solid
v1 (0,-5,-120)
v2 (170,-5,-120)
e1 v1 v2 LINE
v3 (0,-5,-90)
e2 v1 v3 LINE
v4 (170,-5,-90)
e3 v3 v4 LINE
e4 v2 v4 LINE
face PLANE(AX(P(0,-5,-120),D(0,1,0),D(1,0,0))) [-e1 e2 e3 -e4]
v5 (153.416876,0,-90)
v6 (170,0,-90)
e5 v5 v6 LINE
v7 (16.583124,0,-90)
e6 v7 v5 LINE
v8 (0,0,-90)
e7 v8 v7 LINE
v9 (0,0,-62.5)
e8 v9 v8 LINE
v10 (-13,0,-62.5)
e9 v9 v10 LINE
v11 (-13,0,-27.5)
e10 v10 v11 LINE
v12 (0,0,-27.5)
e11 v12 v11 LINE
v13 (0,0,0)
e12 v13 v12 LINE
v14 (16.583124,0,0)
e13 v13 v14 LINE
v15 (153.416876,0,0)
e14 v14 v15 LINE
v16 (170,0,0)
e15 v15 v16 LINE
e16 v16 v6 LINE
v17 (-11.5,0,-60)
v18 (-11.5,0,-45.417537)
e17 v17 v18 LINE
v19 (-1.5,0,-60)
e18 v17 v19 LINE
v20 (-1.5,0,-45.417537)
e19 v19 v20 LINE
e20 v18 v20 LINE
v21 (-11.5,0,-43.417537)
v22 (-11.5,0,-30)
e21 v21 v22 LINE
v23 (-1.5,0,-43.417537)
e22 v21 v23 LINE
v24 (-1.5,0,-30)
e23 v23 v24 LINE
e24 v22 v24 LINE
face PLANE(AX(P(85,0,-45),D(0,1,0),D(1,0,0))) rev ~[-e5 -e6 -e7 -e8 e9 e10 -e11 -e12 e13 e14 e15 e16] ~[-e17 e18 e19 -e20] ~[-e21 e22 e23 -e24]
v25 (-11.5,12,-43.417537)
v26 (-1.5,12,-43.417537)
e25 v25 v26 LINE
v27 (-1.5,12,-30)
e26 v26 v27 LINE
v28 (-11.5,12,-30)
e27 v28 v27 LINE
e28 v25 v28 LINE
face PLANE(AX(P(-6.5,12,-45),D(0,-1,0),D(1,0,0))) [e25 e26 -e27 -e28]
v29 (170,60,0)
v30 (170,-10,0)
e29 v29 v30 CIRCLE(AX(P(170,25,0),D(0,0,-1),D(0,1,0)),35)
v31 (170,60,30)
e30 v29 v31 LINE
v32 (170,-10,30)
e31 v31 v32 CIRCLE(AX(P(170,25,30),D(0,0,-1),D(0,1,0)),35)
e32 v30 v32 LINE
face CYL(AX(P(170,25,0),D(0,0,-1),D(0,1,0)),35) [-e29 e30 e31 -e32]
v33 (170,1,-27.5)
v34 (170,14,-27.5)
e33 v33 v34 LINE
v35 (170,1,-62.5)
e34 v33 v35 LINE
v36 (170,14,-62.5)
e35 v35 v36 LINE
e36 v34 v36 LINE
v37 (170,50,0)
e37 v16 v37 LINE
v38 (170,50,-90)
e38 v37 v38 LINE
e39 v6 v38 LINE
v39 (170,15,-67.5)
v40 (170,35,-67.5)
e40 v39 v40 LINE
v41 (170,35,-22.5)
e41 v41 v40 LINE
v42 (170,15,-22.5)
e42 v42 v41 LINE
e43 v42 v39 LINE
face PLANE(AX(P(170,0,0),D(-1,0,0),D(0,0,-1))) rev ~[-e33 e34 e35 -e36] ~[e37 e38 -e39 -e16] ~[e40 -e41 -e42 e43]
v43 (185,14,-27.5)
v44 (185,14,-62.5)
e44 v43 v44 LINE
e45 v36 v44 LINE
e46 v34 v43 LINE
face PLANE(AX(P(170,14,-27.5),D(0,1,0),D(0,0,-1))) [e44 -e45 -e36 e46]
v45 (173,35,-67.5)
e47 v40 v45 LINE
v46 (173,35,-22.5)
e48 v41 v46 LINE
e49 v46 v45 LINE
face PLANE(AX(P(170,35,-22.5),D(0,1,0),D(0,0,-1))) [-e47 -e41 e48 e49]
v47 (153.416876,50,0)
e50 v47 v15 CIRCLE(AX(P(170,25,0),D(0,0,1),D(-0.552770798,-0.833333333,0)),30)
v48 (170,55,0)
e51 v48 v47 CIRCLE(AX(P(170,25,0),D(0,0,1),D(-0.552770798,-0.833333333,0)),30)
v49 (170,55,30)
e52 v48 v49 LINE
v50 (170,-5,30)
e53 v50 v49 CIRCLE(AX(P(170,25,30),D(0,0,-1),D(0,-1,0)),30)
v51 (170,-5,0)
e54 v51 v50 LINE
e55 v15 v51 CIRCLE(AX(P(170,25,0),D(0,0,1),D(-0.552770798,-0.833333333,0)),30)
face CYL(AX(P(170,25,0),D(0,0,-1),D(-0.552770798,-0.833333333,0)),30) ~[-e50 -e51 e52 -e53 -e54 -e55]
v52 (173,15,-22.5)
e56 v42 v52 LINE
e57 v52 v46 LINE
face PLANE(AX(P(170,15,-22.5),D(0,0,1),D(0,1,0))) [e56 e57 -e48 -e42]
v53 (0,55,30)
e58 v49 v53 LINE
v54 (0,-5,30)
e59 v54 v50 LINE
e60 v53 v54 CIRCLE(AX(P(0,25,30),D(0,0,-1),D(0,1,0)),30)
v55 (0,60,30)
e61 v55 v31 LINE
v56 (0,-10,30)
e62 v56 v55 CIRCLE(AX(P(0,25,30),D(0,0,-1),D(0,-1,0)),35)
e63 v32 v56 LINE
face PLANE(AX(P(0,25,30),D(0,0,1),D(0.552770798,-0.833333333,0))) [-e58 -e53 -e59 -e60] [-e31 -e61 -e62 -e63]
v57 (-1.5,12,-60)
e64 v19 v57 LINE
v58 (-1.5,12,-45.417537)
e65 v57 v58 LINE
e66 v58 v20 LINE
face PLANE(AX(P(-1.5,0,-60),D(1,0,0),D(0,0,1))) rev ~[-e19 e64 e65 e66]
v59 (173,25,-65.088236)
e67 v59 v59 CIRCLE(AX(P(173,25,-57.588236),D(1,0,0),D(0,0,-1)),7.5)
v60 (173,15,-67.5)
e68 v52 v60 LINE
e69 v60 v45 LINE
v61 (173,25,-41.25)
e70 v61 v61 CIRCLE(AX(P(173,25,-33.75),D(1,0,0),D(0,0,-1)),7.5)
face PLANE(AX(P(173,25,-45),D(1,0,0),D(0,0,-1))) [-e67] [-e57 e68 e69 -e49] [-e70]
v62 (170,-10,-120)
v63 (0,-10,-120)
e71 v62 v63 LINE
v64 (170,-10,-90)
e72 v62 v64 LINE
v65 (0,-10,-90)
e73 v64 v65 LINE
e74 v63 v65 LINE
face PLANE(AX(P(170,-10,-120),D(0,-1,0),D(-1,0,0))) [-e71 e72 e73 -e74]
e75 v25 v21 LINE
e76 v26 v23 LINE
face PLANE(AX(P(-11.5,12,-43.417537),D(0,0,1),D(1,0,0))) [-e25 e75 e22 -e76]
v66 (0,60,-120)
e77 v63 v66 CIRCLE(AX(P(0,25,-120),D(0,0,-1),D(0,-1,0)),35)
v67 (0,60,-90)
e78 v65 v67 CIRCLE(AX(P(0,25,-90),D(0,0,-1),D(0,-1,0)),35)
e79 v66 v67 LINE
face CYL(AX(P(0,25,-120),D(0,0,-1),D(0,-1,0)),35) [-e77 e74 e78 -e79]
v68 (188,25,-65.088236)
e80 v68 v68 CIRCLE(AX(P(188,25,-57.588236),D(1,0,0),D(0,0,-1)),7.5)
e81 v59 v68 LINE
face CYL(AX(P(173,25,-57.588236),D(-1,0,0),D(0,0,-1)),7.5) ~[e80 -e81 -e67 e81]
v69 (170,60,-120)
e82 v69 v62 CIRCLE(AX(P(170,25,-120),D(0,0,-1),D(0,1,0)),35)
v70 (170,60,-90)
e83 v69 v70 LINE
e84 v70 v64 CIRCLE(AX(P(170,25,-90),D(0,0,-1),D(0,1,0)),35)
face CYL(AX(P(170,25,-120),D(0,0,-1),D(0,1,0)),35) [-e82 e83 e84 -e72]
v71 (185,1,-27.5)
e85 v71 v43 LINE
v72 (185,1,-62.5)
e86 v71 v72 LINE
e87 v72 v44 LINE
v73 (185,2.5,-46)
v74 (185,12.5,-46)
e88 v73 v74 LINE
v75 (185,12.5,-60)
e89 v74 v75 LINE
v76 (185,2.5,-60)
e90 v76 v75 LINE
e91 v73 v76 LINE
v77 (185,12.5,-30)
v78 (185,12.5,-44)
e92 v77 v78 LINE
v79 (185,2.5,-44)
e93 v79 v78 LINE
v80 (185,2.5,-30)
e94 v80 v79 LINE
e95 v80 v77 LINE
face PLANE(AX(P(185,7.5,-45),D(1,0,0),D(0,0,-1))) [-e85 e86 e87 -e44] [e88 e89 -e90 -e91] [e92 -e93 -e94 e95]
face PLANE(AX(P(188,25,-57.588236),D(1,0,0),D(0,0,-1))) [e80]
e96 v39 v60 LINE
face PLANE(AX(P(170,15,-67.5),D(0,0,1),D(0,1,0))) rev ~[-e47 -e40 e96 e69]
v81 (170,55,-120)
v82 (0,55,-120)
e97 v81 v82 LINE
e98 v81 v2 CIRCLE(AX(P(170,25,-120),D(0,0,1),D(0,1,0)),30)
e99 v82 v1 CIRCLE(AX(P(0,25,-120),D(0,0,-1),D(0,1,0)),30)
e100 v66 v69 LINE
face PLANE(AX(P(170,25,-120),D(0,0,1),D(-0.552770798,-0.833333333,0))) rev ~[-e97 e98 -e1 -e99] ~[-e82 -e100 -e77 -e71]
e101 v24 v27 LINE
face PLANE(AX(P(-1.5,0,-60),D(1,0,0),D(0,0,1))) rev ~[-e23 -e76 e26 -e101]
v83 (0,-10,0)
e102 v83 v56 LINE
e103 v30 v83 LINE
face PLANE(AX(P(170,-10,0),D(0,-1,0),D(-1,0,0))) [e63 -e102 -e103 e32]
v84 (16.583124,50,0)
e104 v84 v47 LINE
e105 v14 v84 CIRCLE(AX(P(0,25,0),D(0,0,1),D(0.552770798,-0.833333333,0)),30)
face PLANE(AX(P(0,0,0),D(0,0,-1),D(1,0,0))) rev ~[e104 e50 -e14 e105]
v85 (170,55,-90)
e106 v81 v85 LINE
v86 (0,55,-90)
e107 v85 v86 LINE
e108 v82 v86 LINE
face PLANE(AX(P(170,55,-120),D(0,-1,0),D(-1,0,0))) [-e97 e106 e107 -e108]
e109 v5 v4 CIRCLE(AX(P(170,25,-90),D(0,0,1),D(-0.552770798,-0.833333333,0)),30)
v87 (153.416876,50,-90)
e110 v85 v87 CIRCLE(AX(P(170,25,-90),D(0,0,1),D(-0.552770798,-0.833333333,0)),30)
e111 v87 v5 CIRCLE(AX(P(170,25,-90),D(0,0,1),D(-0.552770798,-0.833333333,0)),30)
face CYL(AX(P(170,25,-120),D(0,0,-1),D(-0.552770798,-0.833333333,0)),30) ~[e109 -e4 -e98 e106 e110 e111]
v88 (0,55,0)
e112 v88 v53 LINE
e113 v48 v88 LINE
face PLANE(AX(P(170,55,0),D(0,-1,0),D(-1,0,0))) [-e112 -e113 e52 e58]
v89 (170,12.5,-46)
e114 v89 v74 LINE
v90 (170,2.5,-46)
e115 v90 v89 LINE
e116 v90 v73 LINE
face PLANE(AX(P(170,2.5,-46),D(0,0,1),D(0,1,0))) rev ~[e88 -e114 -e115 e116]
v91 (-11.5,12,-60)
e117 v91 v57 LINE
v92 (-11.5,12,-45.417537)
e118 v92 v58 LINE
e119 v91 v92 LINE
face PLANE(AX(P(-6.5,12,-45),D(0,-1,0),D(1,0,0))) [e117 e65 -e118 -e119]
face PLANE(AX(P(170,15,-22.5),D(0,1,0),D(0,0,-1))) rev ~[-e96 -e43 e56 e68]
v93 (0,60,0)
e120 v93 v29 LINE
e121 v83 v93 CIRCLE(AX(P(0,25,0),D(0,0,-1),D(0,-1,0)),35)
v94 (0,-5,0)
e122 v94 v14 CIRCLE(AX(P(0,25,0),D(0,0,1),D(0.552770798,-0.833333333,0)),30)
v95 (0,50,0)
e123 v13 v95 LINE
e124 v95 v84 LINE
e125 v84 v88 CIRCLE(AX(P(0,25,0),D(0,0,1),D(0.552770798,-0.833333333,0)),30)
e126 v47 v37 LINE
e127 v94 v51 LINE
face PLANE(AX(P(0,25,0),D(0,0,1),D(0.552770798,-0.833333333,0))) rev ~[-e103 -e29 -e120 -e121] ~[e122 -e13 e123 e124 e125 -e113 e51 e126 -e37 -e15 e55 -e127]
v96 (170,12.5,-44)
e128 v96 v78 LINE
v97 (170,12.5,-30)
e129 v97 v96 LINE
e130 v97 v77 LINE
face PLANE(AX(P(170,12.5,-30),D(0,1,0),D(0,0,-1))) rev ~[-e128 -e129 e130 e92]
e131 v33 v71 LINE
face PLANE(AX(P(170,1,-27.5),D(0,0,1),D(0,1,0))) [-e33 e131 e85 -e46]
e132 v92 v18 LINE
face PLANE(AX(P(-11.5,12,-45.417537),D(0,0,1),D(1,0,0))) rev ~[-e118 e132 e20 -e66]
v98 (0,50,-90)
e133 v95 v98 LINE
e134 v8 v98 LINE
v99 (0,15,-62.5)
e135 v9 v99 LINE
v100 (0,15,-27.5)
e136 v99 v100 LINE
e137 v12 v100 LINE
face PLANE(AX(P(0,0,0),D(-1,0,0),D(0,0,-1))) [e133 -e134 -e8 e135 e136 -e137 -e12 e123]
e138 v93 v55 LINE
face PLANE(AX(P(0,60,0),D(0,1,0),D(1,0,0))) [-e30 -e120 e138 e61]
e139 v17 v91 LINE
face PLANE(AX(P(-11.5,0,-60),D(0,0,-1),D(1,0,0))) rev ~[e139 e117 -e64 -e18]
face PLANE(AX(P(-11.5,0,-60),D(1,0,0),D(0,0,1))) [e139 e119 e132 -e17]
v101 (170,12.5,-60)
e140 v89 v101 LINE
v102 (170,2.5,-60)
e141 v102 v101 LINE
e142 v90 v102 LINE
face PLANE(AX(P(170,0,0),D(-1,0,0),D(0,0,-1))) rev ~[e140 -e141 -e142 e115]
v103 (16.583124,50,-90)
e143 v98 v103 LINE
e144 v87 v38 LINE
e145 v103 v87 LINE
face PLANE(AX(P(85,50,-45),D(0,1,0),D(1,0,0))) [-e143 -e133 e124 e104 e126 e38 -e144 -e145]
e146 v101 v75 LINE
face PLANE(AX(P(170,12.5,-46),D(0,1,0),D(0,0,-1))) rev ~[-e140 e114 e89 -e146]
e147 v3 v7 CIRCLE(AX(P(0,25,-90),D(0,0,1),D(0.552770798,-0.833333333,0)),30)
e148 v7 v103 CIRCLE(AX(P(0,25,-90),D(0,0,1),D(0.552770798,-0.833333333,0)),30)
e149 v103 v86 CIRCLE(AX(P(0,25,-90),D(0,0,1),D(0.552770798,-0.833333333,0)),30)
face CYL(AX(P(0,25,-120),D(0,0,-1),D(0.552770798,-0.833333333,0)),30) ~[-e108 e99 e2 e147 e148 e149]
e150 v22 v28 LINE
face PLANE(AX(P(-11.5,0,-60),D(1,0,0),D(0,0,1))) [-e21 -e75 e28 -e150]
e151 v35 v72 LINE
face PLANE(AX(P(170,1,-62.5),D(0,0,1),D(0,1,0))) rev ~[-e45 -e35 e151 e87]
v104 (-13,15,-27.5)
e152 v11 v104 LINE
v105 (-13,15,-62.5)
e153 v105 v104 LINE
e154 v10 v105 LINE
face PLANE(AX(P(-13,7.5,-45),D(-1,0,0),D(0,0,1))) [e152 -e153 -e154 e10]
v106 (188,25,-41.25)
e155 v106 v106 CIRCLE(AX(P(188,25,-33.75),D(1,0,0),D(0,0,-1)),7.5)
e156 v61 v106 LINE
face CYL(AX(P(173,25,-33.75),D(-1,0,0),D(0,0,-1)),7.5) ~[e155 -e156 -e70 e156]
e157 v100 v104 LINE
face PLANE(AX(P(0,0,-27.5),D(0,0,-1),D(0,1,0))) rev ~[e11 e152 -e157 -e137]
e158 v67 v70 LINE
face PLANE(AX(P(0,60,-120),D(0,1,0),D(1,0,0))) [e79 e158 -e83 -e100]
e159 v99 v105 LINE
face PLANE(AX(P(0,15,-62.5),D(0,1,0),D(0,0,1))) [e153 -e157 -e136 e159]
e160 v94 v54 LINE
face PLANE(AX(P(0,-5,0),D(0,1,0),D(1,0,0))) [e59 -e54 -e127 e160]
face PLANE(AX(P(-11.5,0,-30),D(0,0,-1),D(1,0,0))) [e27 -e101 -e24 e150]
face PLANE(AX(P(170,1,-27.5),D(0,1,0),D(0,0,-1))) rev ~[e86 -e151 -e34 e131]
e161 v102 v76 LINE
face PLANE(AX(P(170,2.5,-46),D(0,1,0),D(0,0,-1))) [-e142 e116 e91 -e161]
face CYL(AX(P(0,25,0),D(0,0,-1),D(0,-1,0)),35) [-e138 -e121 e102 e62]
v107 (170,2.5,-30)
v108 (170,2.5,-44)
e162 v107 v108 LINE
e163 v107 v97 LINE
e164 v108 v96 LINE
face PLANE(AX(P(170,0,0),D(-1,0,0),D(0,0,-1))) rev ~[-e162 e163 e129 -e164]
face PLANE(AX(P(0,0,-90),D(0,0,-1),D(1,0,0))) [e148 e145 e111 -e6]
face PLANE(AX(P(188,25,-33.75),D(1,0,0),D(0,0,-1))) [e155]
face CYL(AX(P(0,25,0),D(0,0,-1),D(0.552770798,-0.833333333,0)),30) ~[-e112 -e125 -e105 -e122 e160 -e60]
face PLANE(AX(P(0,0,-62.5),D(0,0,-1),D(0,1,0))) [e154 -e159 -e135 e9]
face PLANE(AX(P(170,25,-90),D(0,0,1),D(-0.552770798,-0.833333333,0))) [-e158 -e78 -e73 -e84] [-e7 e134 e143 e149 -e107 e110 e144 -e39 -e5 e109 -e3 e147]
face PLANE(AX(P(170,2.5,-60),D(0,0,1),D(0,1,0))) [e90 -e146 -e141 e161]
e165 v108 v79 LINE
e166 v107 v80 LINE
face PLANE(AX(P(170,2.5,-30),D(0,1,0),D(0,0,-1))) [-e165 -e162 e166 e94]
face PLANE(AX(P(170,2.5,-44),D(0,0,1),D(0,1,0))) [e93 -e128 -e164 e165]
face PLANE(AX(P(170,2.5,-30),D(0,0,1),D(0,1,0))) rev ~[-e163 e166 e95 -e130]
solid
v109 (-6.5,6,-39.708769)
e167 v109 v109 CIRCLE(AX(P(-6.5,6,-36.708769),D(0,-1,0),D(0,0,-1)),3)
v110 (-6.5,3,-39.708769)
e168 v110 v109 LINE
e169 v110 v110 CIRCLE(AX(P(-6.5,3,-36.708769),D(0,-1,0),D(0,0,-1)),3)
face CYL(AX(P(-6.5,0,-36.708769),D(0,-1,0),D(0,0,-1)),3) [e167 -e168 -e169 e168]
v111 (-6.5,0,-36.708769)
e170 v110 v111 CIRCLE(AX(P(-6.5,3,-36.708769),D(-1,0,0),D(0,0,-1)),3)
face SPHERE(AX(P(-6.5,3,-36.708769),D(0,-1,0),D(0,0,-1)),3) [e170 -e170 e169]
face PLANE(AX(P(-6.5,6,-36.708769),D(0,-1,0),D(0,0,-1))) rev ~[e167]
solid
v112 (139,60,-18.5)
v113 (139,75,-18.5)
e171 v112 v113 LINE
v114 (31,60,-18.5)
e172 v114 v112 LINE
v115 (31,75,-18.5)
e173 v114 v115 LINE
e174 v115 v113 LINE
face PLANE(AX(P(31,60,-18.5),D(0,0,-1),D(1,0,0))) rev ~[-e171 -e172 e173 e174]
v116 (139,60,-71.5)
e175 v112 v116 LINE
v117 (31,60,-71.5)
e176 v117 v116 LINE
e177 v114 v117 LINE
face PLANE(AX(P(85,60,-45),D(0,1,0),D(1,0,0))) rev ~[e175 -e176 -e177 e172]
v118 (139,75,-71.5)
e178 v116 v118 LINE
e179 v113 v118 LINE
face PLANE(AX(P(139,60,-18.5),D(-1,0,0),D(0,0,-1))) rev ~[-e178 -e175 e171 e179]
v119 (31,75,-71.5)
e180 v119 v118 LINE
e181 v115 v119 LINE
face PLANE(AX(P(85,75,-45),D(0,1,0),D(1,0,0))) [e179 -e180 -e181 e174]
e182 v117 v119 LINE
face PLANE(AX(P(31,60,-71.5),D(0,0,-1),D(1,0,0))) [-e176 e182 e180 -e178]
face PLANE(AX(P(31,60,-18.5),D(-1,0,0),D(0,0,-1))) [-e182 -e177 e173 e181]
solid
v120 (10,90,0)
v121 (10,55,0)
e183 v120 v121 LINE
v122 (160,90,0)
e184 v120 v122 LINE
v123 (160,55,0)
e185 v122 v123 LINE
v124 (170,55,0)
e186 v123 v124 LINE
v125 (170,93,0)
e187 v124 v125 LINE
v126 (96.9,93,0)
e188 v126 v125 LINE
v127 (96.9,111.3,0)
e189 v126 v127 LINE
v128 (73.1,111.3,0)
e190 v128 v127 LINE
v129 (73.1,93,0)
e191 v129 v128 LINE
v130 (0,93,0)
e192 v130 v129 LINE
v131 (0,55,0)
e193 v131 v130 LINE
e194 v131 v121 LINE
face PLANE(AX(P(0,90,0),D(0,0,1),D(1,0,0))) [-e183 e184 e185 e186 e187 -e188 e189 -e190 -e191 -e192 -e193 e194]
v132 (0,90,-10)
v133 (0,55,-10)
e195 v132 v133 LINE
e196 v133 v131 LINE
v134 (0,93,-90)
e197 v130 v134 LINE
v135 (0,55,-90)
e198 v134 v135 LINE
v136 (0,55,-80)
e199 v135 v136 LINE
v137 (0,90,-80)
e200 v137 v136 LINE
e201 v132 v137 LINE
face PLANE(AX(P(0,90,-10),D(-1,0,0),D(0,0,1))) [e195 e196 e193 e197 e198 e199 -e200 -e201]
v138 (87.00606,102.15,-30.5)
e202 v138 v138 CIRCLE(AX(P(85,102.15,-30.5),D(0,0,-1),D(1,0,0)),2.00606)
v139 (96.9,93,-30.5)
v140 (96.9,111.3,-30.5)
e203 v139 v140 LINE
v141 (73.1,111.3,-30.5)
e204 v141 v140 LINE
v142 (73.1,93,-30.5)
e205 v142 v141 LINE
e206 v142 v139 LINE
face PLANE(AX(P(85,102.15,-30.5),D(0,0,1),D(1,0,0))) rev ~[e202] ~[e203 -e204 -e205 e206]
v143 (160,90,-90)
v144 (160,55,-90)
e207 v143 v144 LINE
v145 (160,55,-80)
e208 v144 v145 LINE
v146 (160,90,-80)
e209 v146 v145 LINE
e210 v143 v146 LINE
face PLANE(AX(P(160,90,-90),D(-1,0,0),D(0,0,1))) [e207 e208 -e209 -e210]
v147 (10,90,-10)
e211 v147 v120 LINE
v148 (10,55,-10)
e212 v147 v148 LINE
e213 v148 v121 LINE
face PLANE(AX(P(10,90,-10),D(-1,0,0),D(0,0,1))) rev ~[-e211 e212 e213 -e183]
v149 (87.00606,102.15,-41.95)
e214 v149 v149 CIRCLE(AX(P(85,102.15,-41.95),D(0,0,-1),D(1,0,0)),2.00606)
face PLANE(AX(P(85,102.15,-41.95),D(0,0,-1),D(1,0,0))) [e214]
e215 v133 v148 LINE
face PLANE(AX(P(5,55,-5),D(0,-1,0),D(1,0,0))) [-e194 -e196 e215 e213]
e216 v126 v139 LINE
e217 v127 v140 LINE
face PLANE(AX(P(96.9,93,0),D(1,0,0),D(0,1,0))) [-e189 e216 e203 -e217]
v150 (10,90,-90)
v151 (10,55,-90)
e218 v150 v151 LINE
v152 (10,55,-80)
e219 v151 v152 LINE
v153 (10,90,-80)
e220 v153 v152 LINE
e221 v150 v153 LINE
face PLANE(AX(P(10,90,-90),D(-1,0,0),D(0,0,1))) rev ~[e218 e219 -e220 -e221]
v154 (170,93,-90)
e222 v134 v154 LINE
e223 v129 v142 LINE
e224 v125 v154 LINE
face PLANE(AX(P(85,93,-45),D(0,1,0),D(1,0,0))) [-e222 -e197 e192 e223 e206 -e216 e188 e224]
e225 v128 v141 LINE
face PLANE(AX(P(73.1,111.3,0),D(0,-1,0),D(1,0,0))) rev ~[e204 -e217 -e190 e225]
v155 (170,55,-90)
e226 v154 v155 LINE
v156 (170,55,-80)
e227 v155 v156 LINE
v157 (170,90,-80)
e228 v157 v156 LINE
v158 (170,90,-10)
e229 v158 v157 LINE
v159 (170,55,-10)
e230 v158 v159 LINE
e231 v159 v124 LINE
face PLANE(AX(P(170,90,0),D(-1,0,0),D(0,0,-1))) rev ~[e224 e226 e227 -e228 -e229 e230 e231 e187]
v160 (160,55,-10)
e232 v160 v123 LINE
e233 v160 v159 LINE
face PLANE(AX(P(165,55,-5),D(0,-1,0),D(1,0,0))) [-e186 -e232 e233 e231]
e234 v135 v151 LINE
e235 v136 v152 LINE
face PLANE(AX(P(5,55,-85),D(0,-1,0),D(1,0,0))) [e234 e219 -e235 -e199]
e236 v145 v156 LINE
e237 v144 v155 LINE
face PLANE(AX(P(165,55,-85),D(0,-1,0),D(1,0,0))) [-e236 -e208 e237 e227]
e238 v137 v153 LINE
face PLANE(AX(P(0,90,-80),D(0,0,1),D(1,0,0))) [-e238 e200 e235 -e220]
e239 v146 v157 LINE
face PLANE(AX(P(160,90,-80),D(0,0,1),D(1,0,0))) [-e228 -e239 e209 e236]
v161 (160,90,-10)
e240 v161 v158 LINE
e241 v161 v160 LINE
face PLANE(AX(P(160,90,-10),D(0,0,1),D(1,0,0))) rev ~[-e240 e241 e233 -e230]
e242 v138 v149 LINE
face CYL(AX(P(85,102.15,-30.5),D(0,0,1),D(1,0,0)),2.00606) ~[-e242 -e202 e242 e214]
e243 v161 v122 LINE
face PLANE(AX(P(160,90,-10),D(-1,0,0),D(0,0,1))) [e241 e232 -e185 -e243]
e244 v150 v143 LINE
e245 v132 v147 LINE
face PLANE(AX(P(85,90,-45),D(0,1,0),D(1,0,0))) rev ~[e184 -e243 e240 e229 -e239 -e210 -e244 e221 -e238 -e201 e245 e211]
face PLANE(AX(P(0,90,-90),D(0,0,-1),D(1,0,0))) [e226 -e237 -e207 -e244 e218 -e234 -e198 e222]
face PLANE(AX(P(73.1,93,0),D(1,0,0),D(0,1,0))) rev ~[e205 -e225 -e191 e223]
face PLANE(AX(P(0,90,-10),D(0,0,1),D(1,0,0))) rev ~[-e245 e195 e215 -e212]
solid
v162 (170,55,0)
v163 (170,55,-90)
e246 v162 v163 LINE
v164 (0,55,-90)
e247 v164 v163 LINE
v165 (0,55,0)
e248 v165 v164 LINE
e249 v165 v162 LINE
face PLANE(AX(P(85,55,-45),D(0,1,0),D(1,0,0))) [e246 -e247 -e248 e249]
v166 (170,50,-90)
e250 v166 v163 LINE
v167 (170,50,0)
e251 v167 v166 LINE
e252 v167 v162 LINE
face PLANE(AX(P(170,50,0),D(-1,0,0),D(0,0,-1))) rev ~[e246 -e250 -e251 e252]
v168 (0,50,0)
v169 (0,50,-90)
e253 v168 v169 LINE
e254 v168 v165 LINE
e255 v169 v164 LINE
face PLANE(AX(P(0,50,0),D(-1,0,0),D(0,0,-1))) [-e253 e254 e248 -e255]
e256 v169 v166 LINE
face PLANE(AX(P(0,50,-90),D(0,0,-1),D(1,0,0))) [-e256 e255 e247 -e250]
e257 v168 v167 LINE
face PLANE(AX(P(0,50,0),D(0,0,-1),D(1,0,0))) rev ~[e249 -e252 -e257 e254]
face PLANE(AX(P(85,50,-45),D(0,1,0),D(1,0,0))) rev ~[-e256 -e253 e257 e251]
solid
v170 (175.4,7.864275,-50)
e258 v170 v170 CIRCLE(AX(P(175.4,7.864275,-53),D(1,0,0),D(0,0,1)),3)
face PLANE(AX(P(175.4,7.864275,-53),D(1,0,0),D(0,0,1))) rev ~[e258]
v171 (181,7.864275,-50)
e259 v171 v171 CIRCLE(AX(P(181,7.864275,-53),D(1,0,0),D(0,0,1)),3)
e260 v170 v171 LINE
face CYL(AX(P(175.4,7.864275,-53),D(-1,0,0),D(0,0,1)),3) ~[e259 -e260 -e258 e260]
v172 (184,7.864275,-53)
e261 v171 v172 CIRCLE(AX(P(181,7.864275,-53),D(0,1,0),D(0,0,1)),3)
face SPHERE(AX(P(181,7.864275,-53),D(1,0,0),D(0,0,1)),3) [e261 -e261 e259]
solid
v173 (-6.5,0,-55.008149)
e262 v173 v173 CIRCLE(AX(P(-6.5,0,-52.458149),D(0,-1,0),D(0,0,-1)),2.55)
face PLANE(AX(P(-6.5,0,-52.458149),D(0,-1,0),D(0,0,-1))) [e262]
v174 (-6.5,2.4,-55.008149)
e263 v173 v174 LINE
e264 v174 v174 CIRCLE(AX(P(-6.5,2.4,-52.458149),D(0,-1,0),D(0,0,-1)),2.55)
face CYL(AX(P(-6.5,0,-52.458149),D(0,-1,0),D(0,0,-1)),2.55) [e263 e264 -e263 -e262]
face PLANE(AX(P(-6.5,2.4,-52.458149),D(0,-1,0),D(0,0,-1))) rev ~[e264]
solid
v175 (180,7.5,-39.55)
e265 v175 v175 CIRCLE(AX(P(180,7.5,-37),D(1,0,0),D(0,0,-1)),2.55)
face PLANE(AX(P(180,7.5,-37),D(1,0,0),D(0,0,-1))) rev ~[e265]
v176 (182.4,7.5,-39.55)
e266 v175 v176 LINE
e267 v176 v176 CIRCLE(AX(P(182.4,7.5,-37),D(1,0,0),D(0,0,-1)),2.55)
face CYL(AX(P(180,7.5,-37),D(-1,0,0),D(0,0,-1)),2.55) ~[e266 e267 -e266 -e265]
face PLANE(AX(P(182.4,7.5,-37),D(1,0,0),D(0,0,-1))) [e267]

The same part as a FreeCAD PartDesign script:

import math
import FreeCAD as App
import Part
import Sketcher


def edges_at(feature, points):
    """Names of the edges that pass closest to the given points."""
    edges = feature.Shape.Edges
    near = lambda p: min(range(len(edges)), key=lambda i: edges[i].distToShape(Part.Vertex(*p))[0])
    return sorted({f"Edge{near(p) + 1}" for p in points})


def add_polygon(sketch, points):
    """Adds a closed chain of lines whose ends are joined by coincident constraints."""
    first, n = sketch.GeometryCount, len(points)
    for a, b in zip(points, points[1:] + points[:1]):
        sketch.addGeometry(Part.LineSegment(App.Vector(*a, 0), App.Vector(*b, 0)), False)
    for i in range(n):
        sketch.addConstraint(Sketcher.Constraint("Coincident", first + i, 2, first + (i + 1) % n, 1))

doc = App.newDocument("Part")
body = doc.addObject("PartDesign::Body", "Body")

# Sketch on XZ plane
sketch1 = doc.addObject("Sketcher::SketchObject", "Sketch")
body.addObject(sketch1)
sketch1.AttachmentSupport = (doc.XZ_Plane, [""])
sketch1.MapMode = "FlatFace"
add_polygon(sketch1, [(0, -90), (0, 0), (170, 0), (170, -90)])  # lines 0-3
sketch1.addConstraint([
    Sketcher.Constraint("Vertical", 0),
    Sketcher.Constraint("Horizontal", 1),
    Sketcher.Constraint("Vertical", 2),
    Sketcher.Constraint("Horizontal", 3),
    Sketcher.Constraint("Coincident", 0, 2, -1, 1),
    Sketcher.Constraint("DistanceX", 1, 1, 1, 2, 170.0),
    Sketcher.Constraint("DistanceY", 0, 1, 0, 2, 90.0),
])
pad1 = doc.addObject("PartDesign::Pad", "Pad")
body.addObject(pad1)
pad1.Profile = sketch1
pad1.Length = 50
pad1.Reversed = True

# Sketch on XY plane
sketch2 = doc.addObject("Sketcher::SketchObject", "Sketch001")
body.addObject(sketch2)
sketch2.AttachmentSupport = (doc.XY_Plane, [""])
sketch2.MapMode = "FlatFace"
sketch2.addGeometry([
    Part.Circle(App.Vector(170, 25, 0), App.Vector(0, 0, 1), 30),
    Part.Circle(App.Vector(0, 25, 0), App.Vector(0, 0, 1), 30),
], False)
sketch2.addConstraint([
    Sketcher.Constraint("Equal", 0, 1),
    Sketcher.Constraint("PointOnObject", 1, 3, -2),
    Sketcher.Constraint("Horizontal", 0, 3, 1, 3),
    Sketcher.Constraint("Diameter", 0, 60.0),
    Sketcher.Constraint("DistanceX", -1, 1, 0, 3, 170.0),
    Sketcher.Constraint("DistanceY", -1, 1, 0, 3, 25.0),
])
pad2 = doc.addObject("PartDesign::Pad", "Pad001")
body.addObject(pad2)
pad2.Profile = sketch2
pad2.Length = 30
doc.recompute()

linearpattern = doc.addObject("PartDesign::LinearPattern", "LinearPattern")
body.addObject(linearpattern)
linearpattern.Originals = [pad2]
linearpattern.Direction = (doc.Z_Axis, [""])
linearpattern.Mode = "offset"
linearpattern.Offset = 120
linearpattern.Occurrences = 2
linearpattern.Reversed = True
body.Tip = linearpattern

# Sketch on XY plane
sketch3 = doc.addObject("Sketcher::SketchObject", "Sketch002")
body.addObject(sketch3)
sketch3.AttachmentSupport = (doc.XY_Plane, [""])
sketch3.MapMode = "FlatFace"
sketch3.addGeometry([
    Part.LineSegment(App.Vector(170, 60, 0), App.Vector(0, 60, 0)),  # 0
    Part.ArcOfCircle(Part.Circle(App.Vector(0, 25, 0), App.Vector(0, 0, 1), 35), math.radians(90), math.radians(270)),  # 1
    Part.LineSegment(App.Vector(0, -10, 0), App.Vector(170, -10, 0)),  # 2
    Part.ArcOfCircle(Part.Circle(App.Vector(170, 25, 0), App.Vector(0, 0, 1), 35), math.radians(-90), math.radians(90)),  # 3
    Part.ArcOfCircle(Part.Circle(App.Vector(170, 25, 0), App.Vector(0, 0, 1), 30), math.radians(-90), math.radians(90)),  # 4
    Part.LineSegment(App.Vector(170, -5, 0), App.Vector(0, -5, 0)),  # 5
    Part.ArcOfCircle(Part.Circle(App.Vector(0, 25, 0), App.Vector(0, 0, 1), 30), math.radians(90), math.radians(270)),  # 6
    Part.LineSegment(App.Vector(0, 55, 0), App.Vector(170, 55, 0)),  # 7
], False)
sketch3.addConstraint([
    Sketcher.Constraint("Tangent", 0, 2, 1, 1),
    Sketcher.Constraint("Tangent", 1, 2, 2, 1),
    Sketcher.Constraint("Tangent", 2, 2, 3, 1),
    Sketcher.Constraint("Tangent", 3, 2, 0, 1),
    Sketcher.Constraint("Tangent", 4, 1, 5, 1),
    Sketcher.Constraint("Tangent", 5, 2, 6, 2),
    Sketcher.Constraint("Tangent", 6, 1, 7, 1),
    Sketcher.Constraint("Tangent", 7, 2, 4, 2),
    Sketcher.Constraint("Horizontal", 0),
    Sketcher.Constraint("Horizontal", 2),
    Sketcher.Constraint("Horizontal", 5),
    Sketcher.Constraint("Horizontal", 7),
    Sketcher.Constraint("Coincident", 4, 3, 3, 3),
    Sketcher.Constraint("PointOnObject", 1, 3, -2),
    Sketcher.Constraint("PointOnObject", 6, 3, -2),
    Sketcher.Constraint("Radius", 1, 35.0),
    Sketcher.Constraint("Radius", 4, 30.0),
    Sketcher.Constraint("DistanceX", 0, 2, 0, 1, 170.0),
    Sketcher.Constraint("DistanceY", -1, 1, 1, 3, 25.0),
])
pad3 = doc.addObject("PartDesign::Pad", "Pad002")
body.addObject(pad3)
pad3.Profile = sketch3
pad3.Length = 30
doc.recompute()

linearpattern2 = doc.addObject("PartDesign::LinearPattern", "LinearPattern001")
body.addObject(linearpattern2)
linearpattern2.Originals = [pad3]
linearpattern2.Direction = (doc.Z_Axis, [""])
linearpattern2.Mode = "offset"
linearpattern2.Offset = 120
linearpattern2.Occurrences = 2
linearpattern2.Reversed = True
body.Tip = linearpattern2

# Sketch on YZ plane
sketch4 = doc.addObject("Sketcher::SketchObject", "Sketch003")
body.addObject(sketch4)
sketch4.AttachmentSupport = (doc.YZ_Plane, [""])
sketch4.MapMode = "FlatFace"
sketch4.AttachmentOffset = App.Placement(App.Vector(0, 0, 170), App.Rotation())
add_polygon(sketch4, [(35, -22), (15, -22), (15, -68), (35, -68)])  # lines 0-3
sketch4.addConstraint([
    Sketcher.Constraint("Horizontal", 0),
    Sketcher.Constraint("Vertical", 1),
    Sketcher.Constraint("Horizontal", 2),
    Sketcher.Constraint("Vertical", 3),
    Sketcher.Constraint("DistanceX", 0, 2, 0, 1, 20.0),
    Sketcher.Constraint("DistanceY", 1, 2, 1, 1, 45.0),
    Sketcher.Constraint("DistanceX", -1, 1, 0, 2, 15.0),
    Sketcher.Constraint("DistanceY", 0, 2, -1, 1, 22.5),
])
pad4 = doc.addObject("PartDesign::Pad", "Pad003")
body.addObject(pad4)
pad4.Profile = sketch4
pad4.Length = 3

# Sketch on YZ plane
sketch5 = doc.addObject("Sketcher::SketchObject", "Sketch004")
body.addObject(sketch5)
sketch5.AttachmentSupport = (doc.YZ_Plane, [""])
sketch5.MapMode = "FlatFace"
sketch5.AttachmentOffset = App.Placement(App.Vector(0, 0, 173), App.Rotation())
sketch5.addGeometry([
    Part.Circle(App.Vector(25, -58, 0), App.Vector(0, 0, 1), 8),
    Part.Circle(App.Vector(25, -34, 0), App.Vector(0, 0, 1), 8),
], False)
sketch5.addConstraint([
    Sketcher.Constraint("Equal", 0, 1),
    Sketcher.Constraint("Vertical", 0, 3, 1, 3),
    Sketcher.Constraint("Diameter", 0, 15.0),
    Sketcher.Constraint("DistanceX", -1, 1, 0, 3, 25.0),
    Sketcher.Constraint("DistanceY", 1, 3, -1, 1, 33.75),
    Sketcher.Constraint("DistanceY", 0, 3, -1, 1, 57.588236),
])
pad5 = doc.addObject("PartDesign::Pad", "Pad004")
body.addObject(pad5)
pad5.Profile = sketch5
pad5.Length = 15

# Sketch on YZ plane
sketch6 = doc.addObject("Sketcher::SketchObject", "Sketch005")
body.addObject(sketch6)
sketch6.AttachmentSupport = (doc.YZ_Plane, [""])
sketch6.MapMode = "FlatFace"
sketch6.AttachmentOffset = App.Placement(App.Vector(0, 0, 170), App.Rotation())
add_polygon(sketch6, [(14, -28), (1, -28), (1, -62), (14, -62)])  # lines 0-3
add_polygon(sketch6, [(2, -44), (2, -30), (12, -30), (12, -44)])  # lines 4-7
add_polygon(sketch6, [(2, -60), (2, -46), (12, -46), (12, -60)])  # lines 8-11
sketch6.addConstraint([
    Sketcher.Constraint("Horizontal", 0),
    Sketcher.Constraint("Vertical", 1),
    Sketcher.Constraint("Horizontal", 2),
    Sketcher.Constraint("Vertical", 3),
    Sketcher.Constraint("Vertical", 4),
    Sketcher.Constraint("Horizontal", 5),
    Sketcher.Constraint("Vertical", 6),
    Sketcher.Constraint("Horizontal", 7),
    Sketcher.Constraint("Vertical", 8),
    Sketcher.Constraint("Horizontal", 9),
    Sketcher.Constraint("Vertical", 10),
    Sketcher.Constraint("Horizontal", 11),
    Sketcher.Constraint("Vertical", 7, 2, 8, 2),
    Sketcher.Constraint("Vertical", 6, 2, 9, 2),
    Sketcher.Constraint("Equal", 6, 8),
    Sketcher.Constraint("DistanceX", 0, 2, 0, 1, 13.0),
    Sketcher.Constraint("DistanceX", 5, 1, 5, 2, 10.0),
    Sketcher.Constraint("DistanceY", 1, 2, 1, 1, 35.0),
    Sketcher.Constraint("DistanceY", 4, 1, 4, 2, 14.0),
    Sketcher.Constraint("DistanceX", -1, 1, 0, 2, 1.0),
    Sketcher.Constraint("DistanceY", 4, 2, -1, 1, 30.0),
    Sketcher.Constraint("DistanceY", 8, 2, -1, 1, 46.0),
    Sketcher.Constraint("DistanceY", 0, 2, -1, 1, 27.5),
    Sketcher.Constraint("DistanceX", -1, 1, 4, 2, 2.5),
])
pad6 = doc.addObject("PartDesign::Pad", "Pad005")
body.addObject(pad6)
pad6.Profile = sketch6
pad6.Length = 15

# Sketch on YZ plane
sketch7 = doc.addObject("Sketcher::SketchObject", "Sketch006")
body.addObject(sketch7)
sketch7.AttachmentSupport = (doc.YZ_Plane, [""])
sketch7.MapMode = "FlatFace"
add_polygon(sketch7, [(15, -62), (0, -62), (0, -28), (15, -28)])  # lines 0-3
sketch7.addConstraint([
    Sketcher.Constraint("Horizontal", 0),
    Sketcher.Constraint("Vertical", 1),
    Sketcher.Constraint("Horizontal", 2),
    Sketcher.Constraint("Vertical", 3),
    Sketcher.Constraint("PointOnObject", 0, 2, -2),
    Sketcher.Constraint("DistanceX", 0, 2, 0, 1, 15.0),
    Sketcher.Constraint("DistanceY", 1, 1, 1, 2, 35.0),
    Sketcher.Constraint("DistanceY", 0, 2, -1, 1, 62.5),
])
pad7 = doc.addObject("PartDesign::Pad", "Pad006")
body.addObject(pad7)
pad7.Profile = sketch7
pad7.Length = 13
pad7.Reversed = True

# Sketch on XZ plane
sketch8 = doc.addObject("Sketcher::SketchObject", "Sketch007")
body.addObject(sketch8)
sketch8.AttachmentSupport = (doc.XZ_Plane, [""])
sketch8.MapMode = "FlatFace"
add_polygon(sketch8, [(-12, -30), (-12, -60), (-2, -60), (-2, -30)])  # lines 0-3
sketch8.addConstraint([
    Sketcher.Constraint("Vertical", 0),
    Sketcher.Constraint("Horizontal", 1),
    Sketcher.Constraint("Vertical", 2),
    Sketcher.Constraint("Horizontal", 3),
    Sketcher.Constraint("DistanceX", 1, 1, 1, 2, 10.0),
    Sketcher.Constraint("DistanceY", 0, 2, 0, 1, 30.0),
    Sketcher.Constraint("DistanceY", 0, 2, -1, 1, 60.0),
    Sketcher.Constraint("DistanceX", 0, 2, -1, 1, 11.5),
])
pocket1 = doc.addObject("PartDesign::Pocket", "Pocket")
body.addObject(pocket1)
pocket1.Profile = sketch8
pocket1.Length = 12

# Sketch on XZ plane
sketch9 = doc.addObject("Sketcher::SketchObject", "Sketch008")
body.addObject(sketch9)
sketch9.AttachmentSupport = (doc.XZ_Plane, [""])
sketch9.MapMode = "FlatFace"
sketch9.AttachmentOffset = App.Placement(App.Vector(0, 0, -12), App.Rotation())
add_polygon(sketch9, [(-11.5, -43.4), (-11.5, -45.4), (-1.5, -45.4), (-1.5, -43.4)])  # lines 0-3
sketch9.addConstraint([
    Sketcher.Constraint("Vertical", 0),
    Sketcher.Constraint("Horizontal", 1),
    Sketcher.Constraint("Vertical", 2),
    Sketcher.Constraint("Horizontal", 3),
    Sketcher.Constraint("DistanceX", 1, 1, 1, 2, 10.0),
    Sketcher.Constraint("DistanceY", 0, 2, 0, 1, 2.0),
    Sketcher.Constraint("DistanceX", 0, 2, -1, 1, 11.5),
    Sketcher.Constraint("DistanceY", 0, 2, -1, 1, 45.417537),
])
pad8 = doc.addObject("PartDesign::Pad", "Pad007")
body.addObject(pad8)
pad8.Profile = sketch9
pad8.Length = 12
body2 = doc.addObject("PartDesign::Body", "Body001")

# Sketch on XZ plane
sketch10 = doc.addObject("Sketcher::SketchObject", "Sketch009")
body2.addObject(sketch10)
sketch10.AttachmentSupport = (doc.getObject("XZ_Plane001"), [""])
sketch10.MapMode = "FlatFace"
sketch10.AttachmentOffset = App.Placement(App.Vector(0, 0, -50), App.Rotation())
add_polygon(sketch10, [(0, -90), (0, 0), (170, 0), (170, -90)])  # lines 0-3
sketch10.addConstraint([
    Sketcher.Constraint("Vertical", 0),
    Sketcher.Constraint("Horizontal", 1),
    Sketcher.Constraint("Vertical", 2),
    Sketcher.Constraint("Horizontal", 3),
    Sketcher.Constraint("Coincident", 0, 2, -1, 1),
    Sketcher.Constraint("DistanceX", 1, 1, 1, 2, 170.0),
    Sketcher.Constraint("DistanceY", 0, 1, 0, 2, 90.0),
])
pad9 = doc.addObject("PartDesign::Pad", "Pad008")
body2.addObject(pad9)
pad9.Profile = sketch10
pad9.Length = 5
pad9.Reversed = True
body3 = doc.addObject("PartDesign::Body", "Body002")

# Sketch on XZ plane
sketch11 = doc.addObject("Sketcher::SketchObject", "Sketch010")
body3.addObject(sketch11)
sketch11.AttachmentSupport = (doc.getObject("XZ_Plane002"), [""])
sketch11.MapMode = "FlatFace"
sketch11.AttachmentOffset = App.Placement(App.Vector(0, 0, -60), App.Rotation())
add_polygon(sketch11, [(31, -72), (31, -18), (139, -18), (139, -72)])  # lines 0-3
sketch11.addConstraint([
    Sketcher.Constraint("Vertical", 0),
    Sketcher.Constraint("Horizontal", 1),
    Sketcher.Constraint("Vertical", 2),
    Sketcher.Constraint("Horizontal", 3),
    Sketcher.Constraint("DistanceX", 1, 1, 1, 2, 108.0),
    Sketcher.Constraint("DistanceY", 0, 1, 0, 2, 53.0),
    Sketcher.Constraint("DistanceX", -1, 1, 0, 2, 31.0),
    Sketcher.Constraint("DistanceY", 0, 2, -1, 1, 18.5),
])
pad10 = doc.addObject("PartDesign::Pad", "Pad009")
body3.addObject(pad10)
pad10.Profile = sketch11
pad10.Length = 15
pad10.Reversed = True
body4 = doc.addObject("PartDesign::Body", "Body003")

# Sketch on XZ plane
sketch12 = doc.addObject("Sketcher::SketchObject", "Sketch011")
body4.addObject(sketch12)
sketch12.AttachmentSupport = (doc.getObject("XZ_Plane003"), [""])
sketch12.MapMode = "FlatFace"
sketch12.AttachmentOffset = App.Placement(App.Vector(0, 0, -90), App.Rotation())
add_polygon(sketch12, [(0, -90), (0, 0), (170, 0), (170, -90)])  # lines 0-3
sketch12.addConstraint([
    Sketcher.Constraint("Vertical", 0),
    Sketcher.Constraint("Horizontal", 1),
    Sketcher.Constraint("Vertical", 2),
    Sketcher.Constraint("Horizontal", 3),
    Sketcher.Constraint("Coincident", 0, 2, -1, 1),
    Sketcher.Constraint("DistanceX", 1, 1, 1, 2, 170.0),
    Sketcher.Constraint("DistanceY", 0, 1, 0, 2, 90.0),
])
pad11 = doc.addObject("PartDesign::Pad", "Pad010")
body4.addObject(pad11)
pad11.Profile = sketch12
pad11.Length = 3
pad11.Reversed = True

# Sketch on XY plane
sketch13 = doc.addObject("Sketcher::SketchObject", "Sketch012")
body4.addObject(sketch13)
sketch13.AttachmentSupport = (doc.getObject("XY_Plane003"), [""])
sketch13.MapMode = "FlatFace"
add_polygon(sketch13, [(73, 111), (73, 93), (97, 93), (97, 111)])  # lines 0-3
sketch13.addConstraint([
    Sketcher.Constraint("Vertical", 0),
    Sketcher.Constraint("Horizontal", 1),
    Sketcher.Constraint("Vertical", 2),
    Sketcher.Constraint("Horizontal", 3),
    Sketcher.Constraint("DistanceX", 1, 1, 1, 2, 23.8),
    Sketcher.Constraint("DistanceY", 0, 2, 0, 1, 18.3),
    Sketcher.Constraint("DistanceY", -1, 1, 0, 2, 93.0),
    Sketcher.Constraint("DistanceX", -1, 1, 0, 2, 73.1),
])
pad12 = doc.addObject("PartDesign::Pad", "Pad011")
body4.addObject(pad12)
pad12.Profile = sketch13
pad12.Length = 30.5
pad12.Reversed = True

# Sketch on XY plane
sketch14 = doc.addObject("Sketcher::SketchObject", "Sketch013")
body4.addObject(sketch14)
sketch14.AttachmentSupport = (doc.getObject("XY_Plane003"), [""])
sketch14.MapMode = "FlatFace"
sketch14.AttachmentOffset = App.Placement(App.Vector(0, 0, -30.5), App.Rotation())
sketch14.addGeometry(Part.Circle(App.Vector(85, 102.2, 0), App.Vector(0, 0, 1), 2), False)
sketch14.addConstraint([
    Sketcher.Constraint("DistanceX", -1, 1, 0, 3, 85.0),
    Sketcher.Constraint("Diameter", 0, 4.012119),
    Sketcher.Constraint("DistanceY", -1, 1, 0, 3, 102.15),
])
pad13 = doc.addObject("PartDesign::Pad", "Pad012")
body4.addObject(pad13)
pad13.Profile = sketch14
pad13.Length = 11.45
pad13.Reversed = True

# Sketch on XZ plane
sketch15 = doc.addObject("Sketcher::SketchObject", "Sketch014")
body4.addObject(sketch15)
sketch15.AttachmentSupport = (doc.getObject("XZ_Plane003"), [""])
sketch15.MapMode = "FlatFace"
sketch15.AttachmentOffset = App.Placement(App.Vector(0, 0, -90), App.Rotation())
add_polygon(sketch15, [(0, 0), (0, -10), (10, -10), (10, 0)])  # lines 0-3
add_polygon(sketch15, [(160, 0), (160, -10), (170, -10), (170, 0)])  # lines 4-7
add_polygon(sketch15, [(160, -80), (160, -90), (170, -90), (170, -80)])  # lines 8-11
add_polygon(sketch15, [(0, -80), (0, -90), (10, -90), (10, -80)])  # lines 12-15
sketch15.addConstraint([
    Sketcher.Constraint("Vertical", 0),
    Sketcher.Constraint("Horizontal", 1),
    Sketcher.Constraint("Vertical", 2),
    Sketcher.Constraint("Horizontal", 3),
    Sketcher.Constraint("Vertical", 4),
    Sketcher.Constraint("Horizontal", 5),
    Sketcher.Constraint("Vertical", 6),
    Sketcher.Constraint("Horizontal", 7),
    Sketcher.Constraint("Vertical", 8),
    Sketcher.Constraint("Horizontal", 9),
    Sketcher.Constraint("Vertical", 10),
    Sketcher.Constraint("Horizontal", 11),
    Sketcher.Constraint("Vertical", 12),
    Sketcher.Constraint("Horizontal", 13),
    Sketcher.Constraint("Vertical", 14),
    Sketcher.Constraint("Horizontal", 15),
    Sketcher.Constraint("Coincident", 3, 2, -1, 1),
    Sketcher.Constraint("PointOnObject", 6, 2, -1),
    Sketcher.Constraint("PointOnObject", 12, 2, -2),
    Sketcher.Constraint("Horizontal", 1, 2, 4, 2),
    Sketcher.Constraint("Horizontal", 9, 2, 12, 2),
    Sketcher.Constraint("Horizontal", 11, 2, 14, 2),
    Sketcher.Constraint("Vertical", 7, 2, 8, 2),
    Sketcher.Constraint("Vertical", 6, 2, 9, 2),
    Sketcher.Constraint("Vertical", 2, 2, 13, 2),
    Sketcher.Constraint("Equal", 3, 5),
    Sketcher.Constraint("Equal", 15, 0),
    Sketcher.Constraint("Equal", 6, 8),
    Sketcher.Constraint("DistanceX", 1, 1, 1, 2, 10.0),
    Sketcher.Constraint("DistanceX", -1, 1, 4, 2, 160.0),
    Sketcher.Constraint("DistanceY", 8, 2, -1, 1, 90.0),
])
pad14 = doc.addObject("PartDesign::Pad", "Pad013")
body4.addObject(pad14)
pad14.Profile = sketch15
pad14.Length = 35
body5 = doc.addObject("PartDesign::Body", "Body004")

# Sketch on YZ plane
sketch16 = doc.addObject("Sketcher::SketchObject", "Sketch015")
body5.addObject(sketch16)
sketch16.AttachmentSupport = (doc.getObject("YZ_Plane004"), [""])
sketch16.MapMode = "FlatFace"
sketch16.AttachmentOffset = App.Placement(App.Vector(0, 0, 180), App.Rotation())
sketch16.addGeometry(Part.Circle(App.Vector(7.5, -37, 0), App.Vector(0, 0, 1), 2.5), False)
sketch16.addConstraint([
    Sketcher.Constraint("Diameter", 0, 5.1),
    Sketcher.Constraint("DistanceY", 0, 3, -1, 1, 37.0),
    Sketcher.Constraint("DistanceX", -1, 1, 0, 3, 7.5),
])
pad15 = doc.addObject("PartDesign::Pad", "Pad014")
body5.addObject(pad15)
pad15.Profile = sketch16
pad15.Length = 2.4
body6 = doc.addObject("PartDesign::Body", "Body005")

# Sketch on YZ plane
sketch17 = doc.addObject("Sketcher::SketchObject", "Sketch016")
body6.addObject(sketch17)
sketch17.AttachmentSupport = (doc.getObject("YZ_Plane005"), [""])
sketch17.MapMode = "FlatFace"
sketch17.AttachmentOffset = App.Placement(App.Vector(0, 0, 175.4), App.Rotation())
sketch17.addGeometry(Part.Circle(App.Vector(7.9, -53, 0), App.Vector(0, 0, 1), 3), False)
sketch17.addConstraint([
    Sketcher.Constraint("Diameter", 0, 6.0),
    Sketcher.Constraint("DistanceY", 0, 3, -1, 1, 53.0),
    Sketcher.Constraint("DistanceX", -1, 1, 0, 3, 7.864275),
])
pad16 = doc.addObject("PartDesign::Pad", "Pad015")
body6.addObject(pad16)
pad16.Profile = sketch17
pad16.Length = 8.6
doc.recompute()

fillet = doc.addObject("PartDesign::Fillet", "Fillet")
body6.addObject(fillet)
fillet.Base = (pad16, edges_at(pad16, [(184, 7.864, -56)]))
fillet.Radius = 3
body7 = doc.addObject("PartDesign::Body", "Body006")

# Sketch on XZ plane
sketch18 = doc.addObject("Sketcher::SketchObject", "Sketch017")
body7.addObject(sketch18)
sketch18.AttachmentSupport = (doc.getObject("XZ_Plane006"), [""])
sketch18.MapMode = "FlatFace"
sketch18.addGeometry(Part.Circle(App.Vector(-6.5, -52.5, 0), App.Vector(0, 0, 1), 2.5), False)
sketch18.addConstraint([
    Sketcher.Constraint("Diameter", 0, 5.1),
    Sketcher.Constraint("DistanceX", 0, 3, -1, 1, 6.5),
    Sketcher.Constraint("DistanceY", 0, 3, -1, 1, 52.458149),
])
pad17 = doc.addObject("PartDesign::Pad", "Pad016")
body7.addObject(pad17)
pad17.Profile = sketch18
pad17.Length = 2.4
pad17.Reversed = True
body8 = doc.addObject("PartDesign::Body", "Body007")

# Sketch on XZ plane
sketch19 = doc.addObject("Sketcher::SketchObject", "Sketch018")
body8.addObject(sketch19)
sketch19.AttachmentSupport = (doc.getObject("XZ_Plane007"), [""])
sketch19.MapMode = "FlatFace"
sketch19.addGeometry(Part.Circle(App.Vector(-6.5, -36.7, 0), App.Vector(0, 0, 1), 3), False)
sketch19.addConstraint([
    Sketcher.Constraint("Diameter", 0, 6.0),
    Sketcher.Constraint("DistanceX", 0, 3, -1, 1, 6.5),
    Sketcher.Constraint("DistanceY", 0, 3, -1, 1, 36.708769),
])
pad18 = doc.addObject("PartDesign::Pad", "Pad017")
body8.addObject(pad18)
pad18.Profile = sketch19
pad18.Length = 6
pad18.Reversed = True
doc.recompute()

fillet2 = doc.addObject("PartDesign::Fillet", "Fillet001")
body8.addObject(fillet2)
fillet2.Base = (pad18, edges_at(pad18, [(-6.5, 0, -33.709)]))
fillet2.Radius = 3

doc.recompute()
